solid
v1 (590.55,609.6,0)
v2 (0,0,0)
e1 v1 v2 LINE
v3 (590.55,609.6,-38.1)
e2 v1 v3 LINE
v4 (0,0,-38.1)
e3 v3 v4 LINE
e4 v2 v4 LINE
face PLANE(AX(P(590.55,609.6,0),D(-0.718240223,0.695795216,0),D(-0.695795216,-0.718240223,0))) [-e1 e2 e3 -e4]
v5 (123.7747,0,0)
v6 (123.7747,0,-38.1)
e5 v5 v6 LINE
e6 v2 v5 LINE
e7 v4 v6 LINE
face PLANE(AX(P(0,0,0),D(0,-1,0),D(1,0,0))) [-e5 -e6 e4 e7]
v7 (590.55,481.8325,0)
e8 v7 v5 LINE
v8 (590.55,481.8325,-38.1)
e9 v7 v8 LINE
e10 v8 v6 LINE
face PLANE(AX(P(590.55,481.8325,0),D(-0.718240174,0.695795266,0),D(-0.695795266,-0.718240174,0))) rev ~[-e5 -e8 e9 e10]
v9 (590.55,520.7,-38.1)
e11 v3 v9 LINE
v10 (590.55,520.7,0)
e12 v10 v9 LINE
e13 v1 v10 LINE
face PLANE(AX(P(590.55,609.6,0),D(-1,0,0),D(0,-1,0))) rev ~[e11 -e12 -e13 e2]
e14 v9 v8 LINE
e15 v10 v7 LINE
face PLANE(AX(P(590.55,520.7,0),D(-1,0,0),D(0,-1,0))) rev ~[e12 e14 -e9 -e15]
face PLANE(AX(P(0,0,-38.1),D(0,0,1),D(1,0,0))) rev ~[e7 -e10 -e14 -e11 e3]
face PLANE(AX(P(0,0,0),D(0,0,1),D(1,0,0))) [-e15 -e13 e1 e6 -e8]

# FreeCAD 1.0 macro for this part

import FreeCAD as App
import Part
import Sketcher

V = App.Vector
Q = App.Units.Quantity

doc = App.newDocument("Part")
body = doc.addObject("PartDesign::Body", "Body")

# Sketch on XY plane
sketch1 = body.newObject("Sketcher::SketchObject", "Sketch")
sketch1.AttachmentSupport = (doc.getObject("XY_Plane"), [""])
sketch1.MapMode = "FlatFace"
sketch1.addGeometry(Part.LineSegment(V(590.55, 609.6, 0), V(0, 0, 0)), False)
sketch1.addGeometry(Part.LineSegment(V(0, 0, 0), V(123.7747, 0, 0)), False)
sketch1.addGeometry(Part.LineSegment(V(123.7747, 0, 0), V(590.55, 481.8325, 0)), False)
sketch1.addGeometry(Part.LineSegment(V(590.55, 481.8325, 0), V(590.55, 609.6, 0)), False)
sketch1.addConstraint(Sketcher.Constraint("Coincident", 0, 2, 1, 1))
sketch1.addConstraint(Sketcher.Constraint("Coincident", 1, 2, 2, 1))
sketch1.addConstraint(Sketcher.Constraint("Coincident", 2, 2, 3, 1))
sketch1.addConstraint(Sketcher.Constraint("Coincident", 3, 2, 0, 1))
sketch1.addConstraint(Sketcher.Constraint("Horizontal", 1))
sketch1.addConstraint(Sketcher.Constraint("Vertical", 3))
sketch1.addConstraint(Sketcher.Constraint("Coincident", 0, 2, -1, 1))
sketch1.addConstraint(Sketcher.Constraint("Parallel", 0, 2))
sketch1.addConstraint(Sketcher.Constraint("DistanceY", -1, 1, 3, 2, Q("24 in")))
sketch1.addConstraint(Sketcher.Constraint("DistanceX", -1, 1, 2, 2, Q("23.25 in")))
sketch1.addConstraint(Sketcher.Constraint("DistanceX", 1, 1, 1, 2, Q("123.7747 mm")))
pad1 = body.newObject("PartDesign::Pad", "Pad")
pad1.Profile = sketch1
pad1.Length = Q("1.5 in")
pad1.Reversed = True

doc.recompute()
